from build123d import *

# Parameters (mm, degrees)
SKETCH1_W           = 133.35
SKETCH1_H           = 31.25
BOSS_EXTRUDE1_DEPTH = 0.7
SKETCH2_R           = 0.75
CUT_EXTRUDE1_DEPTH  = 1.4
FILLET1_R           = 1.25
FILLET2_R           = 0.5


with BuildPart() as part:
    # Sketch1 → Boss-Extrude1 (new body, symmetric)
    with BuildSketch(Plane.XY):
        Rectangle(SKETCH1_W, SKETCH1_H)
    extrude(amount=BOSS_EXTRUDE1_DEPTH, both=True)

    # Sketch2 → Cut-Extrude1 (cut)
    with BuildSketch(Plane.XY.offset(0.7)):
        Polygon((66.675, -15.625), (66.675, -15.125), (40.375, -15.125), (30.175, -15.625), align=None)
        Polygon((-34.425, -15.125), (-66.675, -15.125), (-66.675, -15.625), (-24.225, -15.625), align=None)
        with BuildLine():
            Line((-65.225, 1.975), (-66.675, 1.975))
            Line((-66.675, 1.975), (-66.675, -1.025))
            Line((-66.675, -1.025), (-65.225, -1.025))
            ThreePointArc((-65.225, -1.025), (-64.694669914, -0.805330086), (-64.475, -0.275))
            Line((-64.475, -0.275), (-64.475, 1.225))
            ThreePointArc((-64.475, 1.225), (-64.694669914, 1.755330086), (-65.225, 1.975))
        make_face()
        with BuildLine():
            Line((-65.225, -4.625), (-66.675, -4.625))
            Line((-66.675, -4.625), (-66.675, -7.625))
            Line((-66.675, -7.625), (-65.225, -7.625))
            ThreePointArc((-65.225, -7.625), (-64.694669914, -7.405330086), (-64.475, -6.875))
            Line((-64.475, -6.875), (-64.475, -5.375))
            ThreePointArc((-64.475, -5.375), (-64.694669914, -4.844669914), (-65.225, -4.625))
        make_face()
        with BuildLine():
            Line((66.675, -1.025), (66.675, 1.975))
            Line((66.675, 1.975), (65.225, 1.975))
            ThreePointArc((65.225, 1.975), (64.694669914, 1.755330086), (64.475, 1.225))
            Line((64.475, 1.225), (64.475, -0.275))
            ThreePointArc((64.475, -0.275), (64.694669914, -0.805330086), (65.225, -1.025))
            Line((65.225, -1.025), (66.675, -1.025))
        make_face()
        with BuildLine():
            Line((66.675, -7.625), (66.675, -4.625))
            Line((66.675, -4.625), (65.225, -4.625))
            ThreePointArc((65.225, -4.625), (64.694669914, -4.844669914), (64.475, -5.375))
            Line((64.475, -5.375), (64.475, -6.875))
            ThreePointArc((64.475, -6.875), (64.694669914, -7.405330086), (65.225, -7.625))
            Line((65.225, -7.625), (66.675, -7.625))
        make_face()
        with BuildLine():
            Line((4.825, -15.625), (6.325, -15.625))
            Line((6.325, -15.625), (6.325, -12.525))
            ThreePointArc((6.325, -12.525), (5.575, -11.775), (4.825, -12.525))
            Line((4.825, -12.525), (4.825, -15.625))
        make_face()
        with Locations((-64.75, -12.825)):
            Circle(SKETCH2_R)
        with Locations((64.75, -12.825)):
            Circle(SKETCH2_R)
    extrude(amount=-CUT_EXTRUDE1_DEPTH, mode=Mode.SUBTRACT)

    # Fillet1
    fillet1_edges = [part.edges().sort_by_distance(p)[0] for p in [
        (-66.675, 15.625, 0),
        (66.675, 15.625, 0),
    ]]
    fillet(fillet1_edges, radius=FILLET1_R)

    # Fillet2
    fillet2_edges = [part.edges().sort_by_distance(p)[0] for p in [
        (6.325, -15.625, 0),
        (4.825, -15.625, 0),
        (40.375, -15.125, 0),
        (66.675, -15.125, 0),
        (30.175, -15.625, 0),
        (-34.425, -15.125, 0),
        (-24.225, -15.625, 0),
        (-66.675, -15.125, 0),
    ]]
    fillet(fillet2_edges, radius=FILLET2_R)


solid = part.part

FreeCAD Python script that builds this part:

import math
import FreeCAD as App
import Part
import Sketcher
from FreeCAD import Vector


def edges_at(feature, points):
    """Names of the edges that pass closest to the given points."""
    edges = feature.Shape.Edges
    near = lambda p: min(range(len(edges)), key=lambda i: edges[i].distToShape(Part.Vertex(*p))[0])
    return sorted({f"Edge{near(p) + 1}" for p in points})

doc = App.newDocument("Part")
body = doc.addObject("PartDesign::Body", "Body")

# Sketch on XY plane
sketch1 = doc.addObject("Sketcher::SketchObject", "Sketch")
body.addObject(sketch1)
sketch1.AttachmentSupport = (doc.XY_Plane, [""])
sketch1.MapMode = "FlatFace"
sketch1.addGeometry(Part.LineSegment(Vector(-67, 16, 0), Vector(-67, -16, 0)), False)
sketch1.addGeometry(Part.LineSegment(Vector(-67, -16, 0), Vector(67, -16, 0)), False)
sketch1.addGeometry(Part.LineSegment(Vector(67, -16, 0), Vector(67, 16, 0)), False)
sketch1.addGeometry(Part.LineSegment(Vector(67, 16, 0), Vector(-67, 16, 0)), False)
sketch1.addConstraint(Sketcher.Constraint("Coincident", 0, 2, 1, 1))
sketch1.addConstraint(Sketcher.Constraint("Coincident", 1, 2, 2, 1))
sketch1.addConstraint(Sketcher.Constraint("Coincident", 2, 2, 3, 1))
sketch1.addConstraint(Sketcher.Constraint("Coincident", 3, 2, 0, 1))
sketch1.addConstraint(Sketcher.Constraint("Vertical", 0))
sketch1.addConstraint(Sketcher.Constraint("Horizontal", 1))
sketch1.addConstraint(Sketcher.Constraint("Vertical", 2))
sketch1.addConstraint(Sketcher.Constraint("Horizontal", 3))
sketch1.addConstraint(Sketcher.Constraint("Symmetric", 0, 2, 2, 2, -1, 1))
sketch1.addConstraint(Sketcher.Constraint("DistanceX", 1, 1, 1, 2, 133.35))
sketch1.addConstraint(Sketcher.Constraint("DistanceY", 0, 2, 0, 1, 31.25))
pad1 = doc.addObject("PartDesign::Pad", "Pad")
body.addObject(pad1)
pad1.Profile = sketch1
pad1.Length = 1.4
pad1.Midplane = True

# Sketch on XY plane
sketch2 = doc.addObject("Sketcher::SketchObject", "Sketch001")
body.addObject(sketch2)
sketch2.AttachmentSupport = (doc.XY_Plane, [""])
sketch2.MapMode = "FlatFace"
sketch2.AttachmentOffset = App.Placement(Vector(0, 0, 0.7), App.Rotation())
sketch2.addGeometry(Part.LineSegment(Vector(66.7, -15.6, 0), Vector(66.7, -15.1, 0)), False)
sketch2.addGeometry(Part.LineSegment(Vector(66.7, -15.1, 0), Vector(40.4, -15.1, 0)), False)
sketch2.addGeometry(Part.LineSegment(Vector(40.4, -15.1, 0), Vector(30.2, -15.6, 0)), False)
sketch2.addGeometry(Part.LineSegment(Vector(30.2, -15.6, 0), Vector(66.7, -15.6, 0)), False)
sketch2.addGeometry(Part.LineSegment(Vector(-34.4, -15.1, 0), Vector(-66.7, -15.1, 0)), False)
sketch2.addGeometry(Part.LineSegment(Vector(-66.7, -15.1, 0), Vector(-66.7, -15.6, 0)), False)
sketch2.addGeometry(Part.LineSegment(Vector(-66.7, -15.6, 0), Vector(-24.2, -15.6, 0)), False)
sketch2.addGeometry(Part.LineSegment(Vector(-24.2, -15.6, 0), Vector(-34.4, -15.1, 0)), False)
sketch2.addGeometry(Part.LineSegment(Vector(-65.2, 2, 0), Vector(-66.7, 2, 0)), False)
sketch2.addGeometry(Part.LineSegment(Vector(-66.7, 2, 0), Vector(-66.7, -1, 0)), False)
sketch2.addGeometry(Part.LineSegment(Vector(-66.7, -1, 0), Vector(-65.2, -1, 0)), False)
sketch2.addGeometry(Part.ArcOfCircle(Part.Circle(Vector(-65.2, -0.3, 0), Vector(0, 0, 1), 0.8), math.radians(-90), math.radians(0)), False)
sketch2.addGeometry(Part.LineSegment(Vector(-64.5, -0.3, 0), Vector(-64.5, 1.2, 0)), False)
sketch2.addGeometry(Part.ArcOfCircle(Part.Circle(Vector(-65.2, 1.2, 0), Vector(0, 0, 1), 0.8), math.radians(0), math.radians(90)), False)
sketch2.addGeometry(Part.LineSegment(Vector(-65.2, -4.6, 0), Vector(-66.7, -4.6, 0)), False)
sketch2.addGeometry(Part.LineSegment(Vector(-66.7, -4.6, 0), Vector(-66.7, -7.6, 0)), False)
sketch2.addGeometry(Part.LineSegment(Vector(-66.7, -7.6, 0), Vector(-65.2, -7.6, 0)), False)
sketch2.addGeometry(Part.ArcOfCircle(Part.Circle(Vector(-65.2, -6.9, 0), Vector(0, 0, 1), 0.8), math.radians(-90), math.radians(0)), False)
sketch2.addGeometry(Part.LineSegment(Vector(-64.5, -6.9, 0), Vector(-64.5, -5.4, 0)), False)
sketch2.addGeometry(Part.ArcOfCircle(Part.Circle(Vector(-65.2, -5.4, 0), Vector(0, 0, 1), 0.8), math.radians(0), math.radians(90)), False)
sketch2.addGeometry(Part.LineSegment(Vector(66.7, -1, 0), Vector(66.7, 2, 0)), False)
sketch2.addGeometry(Part.LineSegment(Vector(66.7, 2, 0), Vector(65.2, 2, 0)), False)
sketch2.addGeometry(Part.ArcOfCircle(Part.Circle(Vector(65.2, 1.2, 0), Vector(0, 0, 1), 0.8), math.radians(90), math.radians(180)), False)
sketch2.addGeometry(Part.LineSegment(Vector(64.5, 1.2, 0), Vector(64.5, -0.3, 0)), False)
sketch2.addGeometry(Part.ArcOfCircle(Part.Circle(Vector(65.2, -0.3, 0), Vector(0, 0, 1), 0.8), math.radians(180), math.radians(270)), False)
sketch2.addGeometry(Part.LineSegment(Vector(65.2, -1, 0), Vector(66.7, -1, 0)), False)
sketch2.addGeometry(Part.LineSegment(Vector(66.7, -7.6, 0), Vector(66.7, -4.6, 0)), False)
sketch2.addGeometry(Part.LineSegment(Vector(66.7, -4.6, 0), Vector(65.2, -4.6, 0)), False)
sketch2.addGeometry(Part.ArcOfCircle(Part.Circle(Vector(65.2, -5.4, 0), Vector(0, 0, 1), 0.8), math.radians(90), math.radians(180)), False)
sketch2.addGeometry(Part.LineSegment(Vector(64.5, -5.4, 0), Vector(64.5, -6.9, 0)), False)
sketch2.addGeometry(Part.ArcOfCircle(Part.Circle(Vector(65.2, -6.9, 0), Vector(0, 0, 1), 0.8), math.radians(180), math.radians(270)), False)
sketch2.addGeometry(Part.LineSegment(Vector(65.2, -7.6, 0), Vector(66.7, -7.6, 0)), False)
sketch2.addGeometry(Part.LineSegment(Vector(4.8, -15.6, 0), Vector(6.3, -15.6, 0)), False)
sketch2.addGeometry(Part.LineSegment(Vector(6.3, -15.6, 0), Vector(6.3, -12.5, 0)), False)
sketch2.addGeometry(Part.ArcOfCircle(Part.Circle(Vector(5.6, -12.5, 0), Vector(0, 0, 1), 0.8), math.radians(0), math.radians(180)), False)
sketch2.addGeometry(Part.LineSegment(Vector(4.8, -12.5, 0), Vector(4.8, -15.6, 0)), False)
sketch2.addGeometry(Part.Circle(Vector(-64.8, -12.8, 0), Vector(0, 0, 1), 0.8), False)
sketch2.addGeometry(Part.Circle(Vector(64.8, -12.8, 0), Vector(0, 0, 1), 0.8), False)
sketch2.addConstraint(Sketcher.Constraint("Coincident", 0, 2, 1, 1))
sketch2.addConstraint(Sketcher.Constraint("Coincident", 1, 2, 2, 1))
sketch2.addConstraint(Sketcher.Constraint("Coincident", 2, 2, 3, 1))
sketch2.addConstraint(Sketcher.Constraint("Coincident", 3, 2, 0, 1))
sketch2.addConstraint(Sketcher.Constraint("Coincident", 4, 2, 5, 1))
sketch2.addConstraint(Sketcher.Constraint("Coincident", 5, 2, 6, 1))
sketch2.addConstraint(Sketcher.Constraint("Coincident", 6, 2, 7, 1))
sketch2.addConstraint(Sketcher.Constraint("Coincident", 7, 2, 4, 1))
sketch2.addConstraint(Sketcher.Constraint("Coincident", 8, 2, 9, 1))
sketch2.addConstraint(Sketcher.Constraint("Coincident", 9, 2, 10, 1))
sketch2.addConstraint(Sketcher.Constraint("Tangent", 10, 2, 11, 1))
sketch2.addConstraint(Sketcher.Constraint("Tangent", 11, 2, 12, 1))
sketch2.addConstraint(Sketcher.Constraint("Tangent", 12, 2, 13, 1))
sketch2.addConstraint(Sketcher.Constraint("Tangent", 13, 2, 8, 1))
sketch2.addConstraint(Sketcher.Constraint("Coincident", 14, 2, 15, 1))
sketch2.addConstraint(Sketcher.Constraint("Coincident", 15, 2, 16, 1))
sketch2.addConstraint(Sketcher.Constraint("Tangent", 16, 2, 17, 1))
sketch2.addConstraint(Sketcher.Constraint("Tangent", 17, 2, 18, 1))
sketch2.addConstraint(Sketcher.Constraint("Tangent", 18, 2, 19, 1))
sketch2.addConstraint(Sketcher.Constraint("Tangent", 19, 2, 14, 1))
sketch2.addConstraint(Sketcher.Constraint("Coincident", 20, 2, 21, 1))
sketch2.addConstraint(Sketcher.Constraint("Tangent", 21, 2, 22, 1))
sketch2.addConstraint(Sketcher.Constraint("Tangent", 22, 2, 23, 1))
sketch2.addConstraint(Sketcher.Constraint("Tangent", 23, 2, 24, 1))
sketch2.addConstraint(Sketcher.Constraint("Tangent", 24, 2, 25, 1))
sketch2.addConstraint(Sketcher.Constraint("Coincident", 25, 2, 20, 1))
sketch2.addConstraint(Sketcher.Constraint("Coincident", 26, 2, 27, 1))
sketch2.addConstraint(Sketcher.Constraint("Tangent", 27, 2, 28, 1))
sketch2.addConstraint(Sketcher.Constraint("Tangent", 28, 2, 29, 1))
sketch2.addConstraint(Sketcher.Constraint("Tangent", 29, 2, 30, 1))
sketch2.addConstraint(Sketcher.Constraint("Tangent", 30, 2, 31, 1))
sketch2.addConstraint(Sketcher.Constraint("Coincident", 31, 2, 26, 1))
sketch2.addConstraint(Sketcher.Constraint("Coincident", 32, 2, 33, 1))
sketch2.addConstraint(Sketcher.Constraint("Tangent", 33, 2, 34, 1))
sketch2.addConstraint(Sketcher.Constraint("Tangent", 34, 2, 35, 1))
sketch2.addConstraint(Sketcher.Constraint("Coincident", 35, 2, 32, 1))
sketch2.addConstraint(Sketcher.Constraint("Vertical", 0))
sketch2.addConstraint(Sketcher.Constraint("Horizontal", 1))
sketch2.addConstraint(Sketcher.Constraint("Horizontal", 3))
sketch2.addConstraint(Sketcher.Constraint("Horizontal", 4))
sketch2.addConstraint(Sketcher.Constraint("Vertical", 5))
sketch2.addConstraint(Sketcher.Constraint("Horizontal", 6))
sketch2.addConstraint(Sketcher.Constraint("Horizontal", 8))
sketch2.addConstraint(Sketcher.Constraint("Vertical", 9))
sketch2.addConstraint(Sketcher.Constraint("Horizontal", 10))
sketch2.addConstraint(Sketcher.Constraint("Vertical", 12))
sketch2.addConstraint(Sketcher.Constraint("Horizontal", 14))
sketch2.addConstraint(Sketcher.Constraint("Vertical", 15))
sketch2.addConstraint(Sketcher.Constraint("Horizontal", 16))
sketch2.addConstraint(Sketcher.Constraint("Vertical", 18))
sketch2.addConstraint(Sketcher.Constraint("Vertical", 20))
sketch2.addConstraint(Sketcher.Constraint("Horizontal", 21))
sketch2.addConstraint(Sketcher.Constraint("Vertical", 23))
sketch2.addConstraint(Sketcher.Constraint("Horizontal", 25))
sketch2.addConstraint(Sketcher.Constraint("Vertical", 26))
sketch2.addConstraint(Sketcher.Constraint("Horizontal", 27))
sketch2.addConstraint(Sketcher.Constraint("Vertical", 29))
sketch2.addConstraint(Sketcher.Constraint("Horizontal", 31))
sketch2.addConstraint(Sketcher.Constraint("Horizontal", 32))
sketch2.addConstraint(Sketcher.Constraint("Vertical", 33))
sketch2.addConstraint(Sketcher.Constraint("Vertical", 35))
sketch2.addConstraint(Sketcher.Constraint("Equal", 11, 13))
sketch2.addConstraint(Sketcher.Constraint("Equal", 13, 17))
sketch2.addConstraint(Sketcher.Constraint("Equal", 17, 19))
sketch2.addConstraint(Sketcher.Constraint("Equal", 19, 22))
sketch2.addConstraint(Sketcher.Constraint("Equal", 22, 24))
sketch2.addConstraint(Sketcher.Constraint("Equal", 24, 28))
sketch2.addConstraint(Sketcher.Constraint("Equal", 28, 30))
sketch2.addConstraint(Sketcher.Constraint("Equal", 30, 34))
sketch2.addConstraint(Sketcher.Constraint("Equal", 34, 36))
sketch2.addConstraint(Sketcher.Constraint("Equal", 36, 37))
sketch2.addConstraint(Sketcher.Constraint("Symmetric", 13, 3, 22, 3, -2))
sketch2.addConstraint(Sketcher.Constraint("Symmetric", 19, 3, 28, 3, -2))
sketch2.addConstraint(Sketcher.Constraint("Symmetric", 36, 3, 37, 3, -2))
sketch2.addConstraint(Sketcher.Constraint("Symmetric", 0, 2, 4, 2, -2))
sketch2.addConstraint(Sketcher.Constraint("Symmetric", 9, 2, 25, 2, -2))
sketch2.addConstraint(Sketcher.Constraint("Symmetric", 15, 2, 31, 2, -2))
sketch2.addConstraint(Sketcher.Constraint("Horizontal", 3, 2, 5, 2))
sketch2.addConstraint(Sketcher.Constraint("Horizontal", 6, 2, 32, 2))
sketch2.addConstraint(Sketcher.Constraint("Vertical", 13, 3, 17, 3))
sketch2.addConstraint(Sketcher.Constraint("Vertical", 5, 2, 8, 2))
sketch2.addConstraint(Sketcher.Constraint("Vertical", 9, 2, 14, 2))
sketch2.addConstraint(Sketcher.Constraint("Equal", 32, 12))
sketch2.addConstraint(Sketcher.Constraint("Equal", 9, 15))
sketch2.addConstraint(Sketcher.Constraint("Equal", 2, 7))
sketch2.addConstraint(Sketcher.Constraint("Diameter", 36, 1.5))
sketch2.addConstraint(Sketcher.Constraint("DistanceX", 1, 2, 1, 1, 26.3))
sketch2.addConstraint(Sketcher.Constraint("DistanceX", 3, 1, 3, 2, 36.5))
sketch2.addConstraint(Sketcher.Constraint("DistanceY", 0, 1, 0, 2, 0.5))
sketch2.addConstraint(Sketcher.Constraint("DistanceY", 33, 1, 33, 2, 3.1))
sketch2.addConstraint(Sketcher.Constraint("DistanceX", 17, 3, 6, 2, 41.0))
sketch2.addConstraint(Sketcher.Constraint("DistanceX", 4, 2, 4, 1, 32.25))
sketch2.addConstraint(Sketcher.Constraint("DistanceY", 17, 3, 11, 3, 6.6))
sketch2.addConstraint(Sketcher.Constraint("DistanceX", 17, 3, 34, 3, 70.8))
sketch2.addConstraint(Sketcher.Constraint("DistanceY", 36, 3, 34, 3, 0.3))
sketch2.addConstraint(Sketcher.Constraint("DistanceX", 34, 3, 2, 2, 24.6))
sketch2.addConstraint(Sketcher.Constraint("DistanceY", 36, 3, 8, 2, 14.8))
sketch2.addConstraint(Sketcher.Constraint("DistanceX", 36, 3, -1, 1, 64.75))
sketch2.addConstraint(Sketcher.Constraint("DistanceY", 11, 3, -1, 1, 0.275))
pocket1 = doc.addObject("PartDesign::Pocket", "Pocket")
body.addObject(pocket1)
pocket1.Profile = sketch2
pocket1.Length = 1.4
doc.recompute()

fillet = doc.addObject("PartDesign::Fillet", "Fillet")
body.addObject(fillet)
fillet.Base = (pocket1, edges_at(pocket1, [(-66.675, 15.625, 0), (66.675, 15.625, 0)]))
fillet.Radius = 1.25
doc.recompute()

fillet2 = doc.addObject("PartDesign::Fillet", "Fillet001")
body.addObject(fillet2)
fillet2.Base = (fillet, edges_at(fillet, [
    (6.325, -15.625, 0),
    (4.825, -15.625, 0),
    (40.375, -15.125, 0),
    (66.675, -15.125, 0),
    (30.175, -15.625, 0),
    (-34.425, -15.125, 0),
    (-24.225, -15.625, 0),
    (-66.675, -15.125, 0),
]))
fillet2.Radius = 0.5

doc.recompute()
